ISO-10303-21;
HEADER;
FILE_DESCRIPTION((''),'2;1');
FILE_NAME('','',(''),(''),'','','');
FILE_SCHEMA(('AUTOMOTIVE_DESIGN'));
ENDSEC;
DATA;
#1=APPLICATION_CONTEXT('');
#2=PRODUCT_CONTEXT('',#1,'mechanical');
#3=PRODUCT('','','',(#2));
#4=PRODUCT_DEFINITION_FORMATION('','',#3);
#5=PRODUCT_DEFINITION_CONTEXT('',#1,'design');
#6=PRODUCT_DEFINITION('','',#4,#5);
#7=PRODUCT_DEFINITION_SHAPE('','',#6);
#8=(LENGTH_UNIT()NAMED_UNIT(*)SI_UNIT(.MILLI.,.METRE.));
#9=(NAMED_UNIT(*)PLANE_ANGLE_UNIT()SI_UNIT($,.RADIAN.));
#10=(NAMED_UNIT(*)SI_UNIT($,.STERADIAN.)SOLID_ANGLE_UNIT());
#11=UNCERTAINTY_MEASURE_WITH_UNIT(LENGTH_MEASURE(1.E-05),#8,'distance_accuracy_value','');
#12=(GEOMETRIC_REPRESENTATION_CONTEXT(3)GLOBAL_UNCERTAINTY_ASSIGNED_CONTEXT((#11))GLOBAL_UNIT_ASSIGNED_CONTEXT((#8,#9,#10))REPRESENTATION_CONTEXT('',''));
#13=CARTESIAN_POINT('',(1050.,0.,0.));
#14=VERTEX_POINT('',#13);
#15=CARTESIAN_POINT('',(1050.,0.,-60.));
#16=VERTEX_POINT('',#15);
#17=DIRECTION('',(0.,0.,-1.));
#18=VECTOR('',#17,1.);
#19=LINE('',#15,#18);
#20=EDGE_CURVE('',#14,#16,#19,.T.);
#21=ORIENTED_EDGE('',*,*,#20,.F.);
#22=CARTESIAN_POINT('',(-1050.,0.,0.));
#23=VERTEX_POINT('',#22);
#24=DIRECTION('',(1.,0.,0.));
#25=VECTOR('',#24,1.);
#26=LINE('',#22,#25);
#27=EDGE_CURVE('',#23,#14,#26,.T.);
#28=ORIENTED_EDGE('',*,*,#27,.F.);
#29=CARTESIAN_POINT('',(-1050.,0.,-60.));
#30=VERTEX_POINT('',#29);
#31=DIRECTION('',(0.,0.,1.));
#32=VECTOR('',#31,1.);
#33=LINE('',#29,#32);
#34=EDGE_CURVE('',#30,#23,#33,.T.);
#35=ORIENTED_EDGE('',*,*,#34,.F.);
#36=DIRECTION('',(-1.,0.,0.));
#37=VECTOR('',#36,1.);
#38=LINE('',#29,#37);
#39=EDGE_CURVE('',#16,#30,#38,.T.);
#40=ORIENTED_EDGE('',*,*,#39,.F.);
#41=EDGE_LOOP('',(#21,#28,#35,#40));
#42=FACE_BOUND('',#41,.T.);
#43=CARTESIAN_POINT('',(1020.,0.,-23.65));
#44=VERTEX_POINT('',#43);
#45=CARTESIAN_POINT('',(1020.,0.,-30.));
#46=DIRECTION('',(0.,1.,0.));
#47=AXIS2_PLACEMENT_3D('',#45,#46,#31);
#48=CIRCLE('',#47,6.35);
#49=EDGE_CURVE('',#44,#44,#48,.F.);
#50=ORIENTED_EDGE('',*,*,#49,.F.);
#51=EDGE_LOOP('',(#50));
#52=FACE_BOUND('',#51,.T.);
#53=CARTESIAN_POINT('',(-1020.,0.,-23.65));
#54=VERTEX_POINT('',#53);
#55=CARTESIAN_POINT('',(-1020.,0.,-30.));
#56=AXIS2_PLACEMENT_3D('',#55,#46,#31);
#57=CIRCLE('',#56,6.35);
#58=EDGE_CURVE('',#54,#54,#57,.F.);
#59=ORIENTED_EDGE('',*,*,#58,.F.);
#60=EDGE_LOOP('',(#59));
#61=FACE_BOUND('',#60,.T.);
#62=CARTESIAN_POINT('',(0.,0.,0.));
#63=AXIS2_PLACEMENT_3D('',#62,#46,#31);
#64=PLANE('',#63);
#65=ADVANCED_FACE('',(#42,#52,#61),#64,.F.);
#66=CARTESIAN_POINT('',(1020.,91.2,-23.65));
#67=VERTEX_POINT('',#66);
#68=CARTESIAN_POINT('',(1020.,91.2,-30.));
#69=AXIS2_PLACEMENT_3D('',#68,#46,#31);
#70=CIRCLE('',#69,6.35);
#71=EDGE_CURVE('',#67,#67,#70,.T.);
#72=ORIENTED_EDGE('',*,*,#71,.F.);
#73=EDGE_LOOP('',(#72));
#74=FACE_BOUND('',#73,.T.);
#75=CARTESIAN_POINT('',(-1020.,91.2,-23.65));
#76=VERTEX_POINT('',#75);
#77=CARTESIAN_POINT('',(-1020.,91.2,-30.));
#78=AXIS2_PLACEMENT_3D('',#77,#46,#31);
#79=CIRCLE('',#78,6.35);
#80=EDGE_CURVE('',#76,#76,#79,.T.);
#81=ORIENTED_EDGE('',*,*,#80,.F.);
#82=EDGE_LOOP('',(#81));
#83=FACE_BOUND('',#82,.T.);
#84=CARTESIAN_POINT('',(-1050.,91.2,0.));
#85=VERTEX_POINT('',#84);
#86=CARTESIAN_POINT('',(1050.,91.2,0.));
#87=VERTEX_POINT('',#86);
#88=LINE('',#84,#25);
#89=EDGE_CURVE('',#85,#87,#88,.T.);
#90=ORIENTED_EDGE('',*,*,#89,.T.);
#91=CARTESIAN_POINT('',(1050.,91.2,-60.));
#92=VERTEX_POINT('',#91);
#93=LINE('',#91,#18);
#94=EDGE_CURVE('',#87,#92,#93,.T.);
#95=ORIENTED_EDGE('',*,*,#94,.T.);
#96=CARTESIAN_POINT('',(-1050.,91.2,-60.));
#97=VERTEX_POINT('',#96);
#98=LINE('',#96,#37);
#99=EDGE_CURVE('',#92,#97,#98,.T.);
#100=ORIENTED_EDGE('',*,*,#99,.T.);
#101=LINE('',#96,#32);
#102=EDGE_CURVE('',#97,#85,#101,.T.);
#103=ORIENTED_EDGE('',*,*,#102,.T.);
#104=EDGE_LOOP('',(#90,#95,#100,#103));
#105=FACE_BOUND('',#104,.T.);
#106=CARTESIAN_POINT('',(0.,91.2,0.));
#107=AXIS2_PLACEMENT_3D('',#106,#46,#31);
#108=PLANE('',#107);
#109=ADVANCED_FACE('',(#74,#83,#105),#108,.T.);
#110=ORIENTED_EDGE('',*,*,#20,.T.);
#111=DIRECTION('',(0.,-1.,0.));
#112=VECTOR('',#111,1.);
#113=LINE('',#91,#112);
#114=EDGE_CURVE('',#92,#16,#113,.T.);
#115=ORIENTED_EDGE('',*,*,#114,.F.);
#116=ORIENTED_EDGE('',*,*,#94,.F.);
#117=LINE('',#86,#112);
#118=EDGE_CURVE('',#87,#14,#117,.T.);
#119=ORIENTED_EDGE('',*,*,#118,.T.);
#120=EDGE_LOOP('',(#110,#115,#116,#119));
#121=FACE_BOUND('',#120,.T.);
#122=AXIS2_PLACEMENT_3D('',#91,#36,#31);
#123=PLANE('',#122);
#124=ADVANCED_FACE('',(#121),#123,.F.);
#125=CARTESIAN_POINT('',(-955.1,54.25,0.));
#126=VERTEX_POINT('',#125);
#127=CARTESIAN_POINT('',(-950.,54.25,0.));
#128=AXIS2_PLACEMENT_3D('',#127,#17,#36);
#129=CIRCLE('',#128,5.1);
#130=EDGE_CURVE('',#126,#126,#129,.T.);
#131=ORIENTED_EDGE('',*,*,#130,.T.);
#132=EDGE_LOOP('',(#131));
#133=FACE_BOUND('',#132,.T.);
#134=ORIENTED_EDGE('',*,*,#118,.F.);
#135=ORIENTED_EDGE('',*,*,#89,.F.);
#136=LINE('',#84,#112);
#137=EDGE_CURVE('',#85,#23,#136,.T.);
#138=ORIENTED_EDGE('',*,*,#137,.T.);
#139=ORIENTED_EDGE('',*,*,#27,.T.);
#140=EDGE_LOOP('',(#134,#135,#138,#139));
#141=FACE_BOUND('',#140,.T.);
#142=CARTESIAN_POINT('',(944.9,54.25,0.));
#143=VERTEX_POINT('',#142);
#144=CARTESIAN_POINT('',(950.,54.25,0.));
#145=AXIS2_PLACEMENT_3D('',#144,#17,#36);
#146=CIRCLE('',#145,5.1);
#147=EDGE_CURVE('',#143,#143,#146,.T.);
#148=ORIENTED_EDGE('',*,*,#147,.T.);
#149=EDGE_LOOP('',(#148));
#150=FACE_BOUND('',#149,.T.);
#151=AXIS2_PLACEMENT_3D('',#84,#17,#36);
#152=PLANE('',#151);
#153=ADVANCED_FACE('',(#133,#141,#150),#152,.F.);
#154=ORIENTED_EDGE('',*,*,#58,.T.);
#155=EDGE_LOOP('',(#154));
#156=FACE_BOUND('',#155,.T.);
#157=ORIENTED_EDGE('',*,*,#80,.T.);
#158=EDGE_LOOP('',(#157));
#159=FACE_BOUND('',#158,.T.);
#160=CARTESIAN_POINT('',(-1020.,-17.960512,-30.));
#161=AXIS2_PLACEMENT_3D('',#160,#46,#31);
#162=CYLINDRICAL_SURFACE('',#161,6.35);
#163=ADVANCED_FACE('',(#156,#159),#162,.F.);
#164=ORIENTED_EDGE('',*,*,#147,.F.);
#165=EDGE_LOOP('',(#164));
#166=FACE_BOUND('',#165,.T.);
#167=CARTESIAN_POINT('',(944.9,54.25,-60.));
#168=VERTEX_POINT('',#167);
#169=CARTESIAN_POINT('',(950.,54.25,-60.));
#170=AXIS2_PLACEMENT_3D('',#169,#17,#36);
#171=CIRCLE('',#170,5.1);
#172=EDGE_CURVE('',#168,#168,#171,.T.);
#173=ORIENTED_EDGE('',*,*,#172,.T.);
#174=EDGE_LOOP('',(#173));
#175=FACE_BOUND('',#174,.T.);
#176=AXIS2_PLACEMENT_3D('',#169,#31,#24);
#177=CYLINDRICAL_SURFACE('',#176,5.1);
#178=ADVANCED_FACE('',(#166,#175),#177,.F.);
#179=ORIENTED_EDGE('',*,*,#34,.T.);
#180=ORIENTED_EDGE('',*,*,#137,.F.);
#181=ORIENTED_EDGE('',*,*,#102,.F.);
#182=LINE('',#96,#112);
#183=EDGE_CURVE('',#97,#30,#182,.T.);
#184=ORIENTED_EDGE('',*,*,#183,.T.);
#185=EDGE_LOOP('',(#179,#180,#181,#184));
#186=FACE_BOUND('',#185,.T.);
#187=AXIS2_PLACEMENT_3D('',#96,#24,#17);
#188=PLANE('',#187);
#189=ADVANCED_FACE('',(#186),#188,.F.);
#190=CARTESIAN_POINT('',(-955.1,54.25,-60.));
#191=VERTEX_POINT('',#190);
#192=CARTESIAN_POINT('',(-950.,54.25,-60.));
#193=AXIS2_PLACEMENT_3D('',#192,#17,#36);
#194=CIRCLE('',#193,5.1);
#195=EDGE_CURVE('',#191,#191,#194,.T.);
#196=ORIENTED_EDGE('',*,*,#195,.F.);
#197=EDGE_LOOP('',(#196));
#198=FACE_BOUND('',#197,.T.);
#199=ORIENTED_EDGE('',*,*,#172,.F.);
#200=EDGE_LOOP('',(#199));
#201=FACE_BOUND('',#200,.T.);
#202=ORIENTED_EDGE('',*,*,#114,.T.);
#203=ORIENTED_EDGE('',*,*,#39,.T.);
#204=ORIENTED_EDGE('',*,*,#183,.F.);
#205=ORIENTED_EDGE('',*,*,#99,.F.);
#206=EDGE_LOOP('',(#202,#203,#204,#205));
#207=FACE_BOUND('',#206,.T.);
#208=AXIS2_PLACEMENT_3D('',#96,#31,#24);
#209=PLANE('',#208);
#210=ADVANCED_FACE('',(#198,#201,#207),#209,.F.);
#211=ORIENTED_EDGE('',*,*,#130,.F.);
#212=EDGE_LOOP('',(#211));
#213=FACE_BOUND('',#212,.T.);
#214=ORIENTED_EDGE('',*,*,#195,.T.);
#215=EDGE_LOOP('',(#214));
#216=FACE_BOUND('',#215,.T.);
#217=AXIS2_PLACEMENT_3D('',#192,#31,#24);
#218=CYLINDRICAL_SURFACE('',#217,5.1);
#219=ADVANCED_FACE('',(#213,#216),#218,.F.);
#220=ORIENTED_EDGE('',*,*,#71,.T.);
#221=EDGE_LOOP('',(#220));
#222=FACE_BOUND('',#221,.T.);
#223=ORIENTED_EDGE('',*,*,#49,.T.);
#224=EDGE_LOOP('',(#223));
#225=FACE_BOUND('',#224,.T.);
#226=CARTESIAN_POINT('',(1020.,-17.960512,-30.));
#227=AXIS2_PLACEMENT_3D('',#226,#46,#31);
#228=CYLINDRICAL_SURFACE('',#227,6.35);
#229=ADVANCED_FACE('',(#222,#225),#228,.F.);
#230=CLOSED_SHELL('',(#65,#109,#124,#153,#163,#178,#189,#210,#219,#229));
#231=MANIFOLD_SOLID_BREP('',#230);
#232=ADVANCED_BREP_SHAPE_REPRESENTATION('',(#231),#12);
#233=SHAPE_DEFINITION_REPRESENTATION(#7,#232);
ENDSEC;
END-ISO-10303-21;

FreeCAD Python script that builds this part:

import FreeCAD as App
import Part
import Sketcher
from FreeCAD import Vector

doc = App.newDocument("Part")
params = doc.addObject("Spreadsheet::Sheet", "Params")
for row, (alias, value) in enumerate([
    ("sketch1_width", "2100 mm"),
    ("sketch1_height", "60 mm"),
    ("pad1_length", "91.2 mm"),
    ("sketch2_diameter", "10.2 mm"),
    ("sketch3_diameter", "12.7 mm"),
    ("pocket2_length", "91.2 mm"),
], start=1):
    params.set(f"A{row}", alias)
    params.set(f"B{row}", "=" + value)
    params.setAlias(f"B{row}", alias)

body = doc.addObject("PartDesign::Body", "Body")

# Sketch on XZ plane
sketch1 = body.newObject("Sketcher::SketchObject", "Sketch")
sketch1.AttachmentSupport = (doc.getObject("XZ_Plane"), [""])
sketch1.MapMode = "FlatFace"
sketch1.addGeometry([
    Part.LineSegment(Vector(-1050, -60, 0), Vector(-1050, 0, 0)),
    Part.LineSegment(Vector(-1050, 0, 0), Vector(1050, 0, 0)),
    Part.LineSegment(Vector(1050, 0, 0), Vector(1050, -60, 0)),
    Part.LineSegment(Vector(1050, -60, 0), Vector(-1050, -60, 0)),
], False)
sketch1.addConstraint([
    Sketcher.Constraint("Coincident", 0, 2, 1, 1),
    Sketcher.Constraint("Coincident", 1, 2, 2, 1),
    Sketcher.Constraint("Coincident", 2, 2, 3, 1),
    Sketcher.Constraint("Coincident", 3, 2, 0, 1),
    Sketcher.Constraint("Vertical", 0),
    Sketcher.Constraint("Horizontal", 1),
    Sketcher.Constraint("Vertical", 2),
    Sketcher.Constraint("Horizontal", 3),
    Sketcher.Constraint("Symmetric", 0, 2, 1, 2, -1, 1),
    Sketcher.Constraint("DistanceX", 1, 1, 1, 2, 2100.0),
    Sketcher.Constraint("DistanceY", 0, 1, 0, 2, 60.0),
])
sketch1.setExpression("Constraints[9]", "Params.sketch1_width")
sketch1.setExpression("Constraints[10]", "Params.sketch1_height")
pad1 = body.newObject("PartDesign::Pad", "Pad")
pad1.Profile = sketch1
pad1.setExpression("Length", "Params.pad1_length")
pad1.Reversed = True

# Sketch on XY plane
sketch2 = body.newObject("Sketcher::SketchObject", "Sketch001")
sketch2.AttachmentSupport = (doc.getObject("XY_Plane"), [""])
sketch2.MapMode = "FlatFace"
sketch2.addGeometry([
    Part.Circle(Vector(-950, 54.25, 0), Vector(0, 0, 1), 5.1),
    Part.Circle(Vector(950, 54.25, 0), Vector(0, 0, 1), 5.1),
], False)
sketch2.addConstraint([
    Sketcher.Constraint("Equal", 0, 1),
    Sketcher.Constraint("Symmetric", 0, 3, 1, 3, -2),
    Sketcher.Constraint("Diameter", 0, 10.2),
    Sketcher.Constraint("DistanceX", 0, 3, -1, 1, 950.0),
    Sketcher.Constraint("DistanceY", -1, 1, 0, 3, 54.25),
])
sketch2.setExpression("Constraints[2]", "Params.sketch2_diameter")
pocket1 = body.newObject("PartDesign::Pocket", "Pocket")
pocket1.Profile = sketch2
pocket1.Type = "ThroughAll"

# Sketch on XZ plane
sketch3 = body.newObject("Sketcher::SketchObject", "Sketch002")
sketch3.AttachmentSupport = (doc.getObject("XZ_Plane"), [""])
sketch3.MapMode = "FlatFace"
sketch3.AttachmentOffset = App.Placement(Vector(0, 0, -91.2), App.Rotation())
sketch3.addGeometry([
    Part.Circle(Vector(1020, -30, 0), Vector(0, 0, 1), 6.35),
    Part.Circle(Vector(-1020, -30, 0), Vector(0, 0, 1), 6.35),
], False)
sketch3.addConstraint([
    Sketcher.Constraint("Equal", 0, 1),
    Sketcher.Constraint("Symmetric", 0, 3, 1, 3, -2),
    Sketcher.Constraint("Diameter", 0, 12.7),
    Sketcher.Constraint("DistanceX", -1, 1, 0, 3, 1020.0),
    Sketcher.Constraint("DistanceY", 0, 3, -1, 1, 30.0),
])
sketch3.setExpression("Constraints[2]", "Params.sketch3_diameter")
pocket2 = body.newObject("PartDesign::Pocket", "Pocket001")
pocket2.Profile = sketch3
pocket2.setExpression("Length", "Params.pocket2_length")
pocket2.Reversed = True

doc.recompute()
